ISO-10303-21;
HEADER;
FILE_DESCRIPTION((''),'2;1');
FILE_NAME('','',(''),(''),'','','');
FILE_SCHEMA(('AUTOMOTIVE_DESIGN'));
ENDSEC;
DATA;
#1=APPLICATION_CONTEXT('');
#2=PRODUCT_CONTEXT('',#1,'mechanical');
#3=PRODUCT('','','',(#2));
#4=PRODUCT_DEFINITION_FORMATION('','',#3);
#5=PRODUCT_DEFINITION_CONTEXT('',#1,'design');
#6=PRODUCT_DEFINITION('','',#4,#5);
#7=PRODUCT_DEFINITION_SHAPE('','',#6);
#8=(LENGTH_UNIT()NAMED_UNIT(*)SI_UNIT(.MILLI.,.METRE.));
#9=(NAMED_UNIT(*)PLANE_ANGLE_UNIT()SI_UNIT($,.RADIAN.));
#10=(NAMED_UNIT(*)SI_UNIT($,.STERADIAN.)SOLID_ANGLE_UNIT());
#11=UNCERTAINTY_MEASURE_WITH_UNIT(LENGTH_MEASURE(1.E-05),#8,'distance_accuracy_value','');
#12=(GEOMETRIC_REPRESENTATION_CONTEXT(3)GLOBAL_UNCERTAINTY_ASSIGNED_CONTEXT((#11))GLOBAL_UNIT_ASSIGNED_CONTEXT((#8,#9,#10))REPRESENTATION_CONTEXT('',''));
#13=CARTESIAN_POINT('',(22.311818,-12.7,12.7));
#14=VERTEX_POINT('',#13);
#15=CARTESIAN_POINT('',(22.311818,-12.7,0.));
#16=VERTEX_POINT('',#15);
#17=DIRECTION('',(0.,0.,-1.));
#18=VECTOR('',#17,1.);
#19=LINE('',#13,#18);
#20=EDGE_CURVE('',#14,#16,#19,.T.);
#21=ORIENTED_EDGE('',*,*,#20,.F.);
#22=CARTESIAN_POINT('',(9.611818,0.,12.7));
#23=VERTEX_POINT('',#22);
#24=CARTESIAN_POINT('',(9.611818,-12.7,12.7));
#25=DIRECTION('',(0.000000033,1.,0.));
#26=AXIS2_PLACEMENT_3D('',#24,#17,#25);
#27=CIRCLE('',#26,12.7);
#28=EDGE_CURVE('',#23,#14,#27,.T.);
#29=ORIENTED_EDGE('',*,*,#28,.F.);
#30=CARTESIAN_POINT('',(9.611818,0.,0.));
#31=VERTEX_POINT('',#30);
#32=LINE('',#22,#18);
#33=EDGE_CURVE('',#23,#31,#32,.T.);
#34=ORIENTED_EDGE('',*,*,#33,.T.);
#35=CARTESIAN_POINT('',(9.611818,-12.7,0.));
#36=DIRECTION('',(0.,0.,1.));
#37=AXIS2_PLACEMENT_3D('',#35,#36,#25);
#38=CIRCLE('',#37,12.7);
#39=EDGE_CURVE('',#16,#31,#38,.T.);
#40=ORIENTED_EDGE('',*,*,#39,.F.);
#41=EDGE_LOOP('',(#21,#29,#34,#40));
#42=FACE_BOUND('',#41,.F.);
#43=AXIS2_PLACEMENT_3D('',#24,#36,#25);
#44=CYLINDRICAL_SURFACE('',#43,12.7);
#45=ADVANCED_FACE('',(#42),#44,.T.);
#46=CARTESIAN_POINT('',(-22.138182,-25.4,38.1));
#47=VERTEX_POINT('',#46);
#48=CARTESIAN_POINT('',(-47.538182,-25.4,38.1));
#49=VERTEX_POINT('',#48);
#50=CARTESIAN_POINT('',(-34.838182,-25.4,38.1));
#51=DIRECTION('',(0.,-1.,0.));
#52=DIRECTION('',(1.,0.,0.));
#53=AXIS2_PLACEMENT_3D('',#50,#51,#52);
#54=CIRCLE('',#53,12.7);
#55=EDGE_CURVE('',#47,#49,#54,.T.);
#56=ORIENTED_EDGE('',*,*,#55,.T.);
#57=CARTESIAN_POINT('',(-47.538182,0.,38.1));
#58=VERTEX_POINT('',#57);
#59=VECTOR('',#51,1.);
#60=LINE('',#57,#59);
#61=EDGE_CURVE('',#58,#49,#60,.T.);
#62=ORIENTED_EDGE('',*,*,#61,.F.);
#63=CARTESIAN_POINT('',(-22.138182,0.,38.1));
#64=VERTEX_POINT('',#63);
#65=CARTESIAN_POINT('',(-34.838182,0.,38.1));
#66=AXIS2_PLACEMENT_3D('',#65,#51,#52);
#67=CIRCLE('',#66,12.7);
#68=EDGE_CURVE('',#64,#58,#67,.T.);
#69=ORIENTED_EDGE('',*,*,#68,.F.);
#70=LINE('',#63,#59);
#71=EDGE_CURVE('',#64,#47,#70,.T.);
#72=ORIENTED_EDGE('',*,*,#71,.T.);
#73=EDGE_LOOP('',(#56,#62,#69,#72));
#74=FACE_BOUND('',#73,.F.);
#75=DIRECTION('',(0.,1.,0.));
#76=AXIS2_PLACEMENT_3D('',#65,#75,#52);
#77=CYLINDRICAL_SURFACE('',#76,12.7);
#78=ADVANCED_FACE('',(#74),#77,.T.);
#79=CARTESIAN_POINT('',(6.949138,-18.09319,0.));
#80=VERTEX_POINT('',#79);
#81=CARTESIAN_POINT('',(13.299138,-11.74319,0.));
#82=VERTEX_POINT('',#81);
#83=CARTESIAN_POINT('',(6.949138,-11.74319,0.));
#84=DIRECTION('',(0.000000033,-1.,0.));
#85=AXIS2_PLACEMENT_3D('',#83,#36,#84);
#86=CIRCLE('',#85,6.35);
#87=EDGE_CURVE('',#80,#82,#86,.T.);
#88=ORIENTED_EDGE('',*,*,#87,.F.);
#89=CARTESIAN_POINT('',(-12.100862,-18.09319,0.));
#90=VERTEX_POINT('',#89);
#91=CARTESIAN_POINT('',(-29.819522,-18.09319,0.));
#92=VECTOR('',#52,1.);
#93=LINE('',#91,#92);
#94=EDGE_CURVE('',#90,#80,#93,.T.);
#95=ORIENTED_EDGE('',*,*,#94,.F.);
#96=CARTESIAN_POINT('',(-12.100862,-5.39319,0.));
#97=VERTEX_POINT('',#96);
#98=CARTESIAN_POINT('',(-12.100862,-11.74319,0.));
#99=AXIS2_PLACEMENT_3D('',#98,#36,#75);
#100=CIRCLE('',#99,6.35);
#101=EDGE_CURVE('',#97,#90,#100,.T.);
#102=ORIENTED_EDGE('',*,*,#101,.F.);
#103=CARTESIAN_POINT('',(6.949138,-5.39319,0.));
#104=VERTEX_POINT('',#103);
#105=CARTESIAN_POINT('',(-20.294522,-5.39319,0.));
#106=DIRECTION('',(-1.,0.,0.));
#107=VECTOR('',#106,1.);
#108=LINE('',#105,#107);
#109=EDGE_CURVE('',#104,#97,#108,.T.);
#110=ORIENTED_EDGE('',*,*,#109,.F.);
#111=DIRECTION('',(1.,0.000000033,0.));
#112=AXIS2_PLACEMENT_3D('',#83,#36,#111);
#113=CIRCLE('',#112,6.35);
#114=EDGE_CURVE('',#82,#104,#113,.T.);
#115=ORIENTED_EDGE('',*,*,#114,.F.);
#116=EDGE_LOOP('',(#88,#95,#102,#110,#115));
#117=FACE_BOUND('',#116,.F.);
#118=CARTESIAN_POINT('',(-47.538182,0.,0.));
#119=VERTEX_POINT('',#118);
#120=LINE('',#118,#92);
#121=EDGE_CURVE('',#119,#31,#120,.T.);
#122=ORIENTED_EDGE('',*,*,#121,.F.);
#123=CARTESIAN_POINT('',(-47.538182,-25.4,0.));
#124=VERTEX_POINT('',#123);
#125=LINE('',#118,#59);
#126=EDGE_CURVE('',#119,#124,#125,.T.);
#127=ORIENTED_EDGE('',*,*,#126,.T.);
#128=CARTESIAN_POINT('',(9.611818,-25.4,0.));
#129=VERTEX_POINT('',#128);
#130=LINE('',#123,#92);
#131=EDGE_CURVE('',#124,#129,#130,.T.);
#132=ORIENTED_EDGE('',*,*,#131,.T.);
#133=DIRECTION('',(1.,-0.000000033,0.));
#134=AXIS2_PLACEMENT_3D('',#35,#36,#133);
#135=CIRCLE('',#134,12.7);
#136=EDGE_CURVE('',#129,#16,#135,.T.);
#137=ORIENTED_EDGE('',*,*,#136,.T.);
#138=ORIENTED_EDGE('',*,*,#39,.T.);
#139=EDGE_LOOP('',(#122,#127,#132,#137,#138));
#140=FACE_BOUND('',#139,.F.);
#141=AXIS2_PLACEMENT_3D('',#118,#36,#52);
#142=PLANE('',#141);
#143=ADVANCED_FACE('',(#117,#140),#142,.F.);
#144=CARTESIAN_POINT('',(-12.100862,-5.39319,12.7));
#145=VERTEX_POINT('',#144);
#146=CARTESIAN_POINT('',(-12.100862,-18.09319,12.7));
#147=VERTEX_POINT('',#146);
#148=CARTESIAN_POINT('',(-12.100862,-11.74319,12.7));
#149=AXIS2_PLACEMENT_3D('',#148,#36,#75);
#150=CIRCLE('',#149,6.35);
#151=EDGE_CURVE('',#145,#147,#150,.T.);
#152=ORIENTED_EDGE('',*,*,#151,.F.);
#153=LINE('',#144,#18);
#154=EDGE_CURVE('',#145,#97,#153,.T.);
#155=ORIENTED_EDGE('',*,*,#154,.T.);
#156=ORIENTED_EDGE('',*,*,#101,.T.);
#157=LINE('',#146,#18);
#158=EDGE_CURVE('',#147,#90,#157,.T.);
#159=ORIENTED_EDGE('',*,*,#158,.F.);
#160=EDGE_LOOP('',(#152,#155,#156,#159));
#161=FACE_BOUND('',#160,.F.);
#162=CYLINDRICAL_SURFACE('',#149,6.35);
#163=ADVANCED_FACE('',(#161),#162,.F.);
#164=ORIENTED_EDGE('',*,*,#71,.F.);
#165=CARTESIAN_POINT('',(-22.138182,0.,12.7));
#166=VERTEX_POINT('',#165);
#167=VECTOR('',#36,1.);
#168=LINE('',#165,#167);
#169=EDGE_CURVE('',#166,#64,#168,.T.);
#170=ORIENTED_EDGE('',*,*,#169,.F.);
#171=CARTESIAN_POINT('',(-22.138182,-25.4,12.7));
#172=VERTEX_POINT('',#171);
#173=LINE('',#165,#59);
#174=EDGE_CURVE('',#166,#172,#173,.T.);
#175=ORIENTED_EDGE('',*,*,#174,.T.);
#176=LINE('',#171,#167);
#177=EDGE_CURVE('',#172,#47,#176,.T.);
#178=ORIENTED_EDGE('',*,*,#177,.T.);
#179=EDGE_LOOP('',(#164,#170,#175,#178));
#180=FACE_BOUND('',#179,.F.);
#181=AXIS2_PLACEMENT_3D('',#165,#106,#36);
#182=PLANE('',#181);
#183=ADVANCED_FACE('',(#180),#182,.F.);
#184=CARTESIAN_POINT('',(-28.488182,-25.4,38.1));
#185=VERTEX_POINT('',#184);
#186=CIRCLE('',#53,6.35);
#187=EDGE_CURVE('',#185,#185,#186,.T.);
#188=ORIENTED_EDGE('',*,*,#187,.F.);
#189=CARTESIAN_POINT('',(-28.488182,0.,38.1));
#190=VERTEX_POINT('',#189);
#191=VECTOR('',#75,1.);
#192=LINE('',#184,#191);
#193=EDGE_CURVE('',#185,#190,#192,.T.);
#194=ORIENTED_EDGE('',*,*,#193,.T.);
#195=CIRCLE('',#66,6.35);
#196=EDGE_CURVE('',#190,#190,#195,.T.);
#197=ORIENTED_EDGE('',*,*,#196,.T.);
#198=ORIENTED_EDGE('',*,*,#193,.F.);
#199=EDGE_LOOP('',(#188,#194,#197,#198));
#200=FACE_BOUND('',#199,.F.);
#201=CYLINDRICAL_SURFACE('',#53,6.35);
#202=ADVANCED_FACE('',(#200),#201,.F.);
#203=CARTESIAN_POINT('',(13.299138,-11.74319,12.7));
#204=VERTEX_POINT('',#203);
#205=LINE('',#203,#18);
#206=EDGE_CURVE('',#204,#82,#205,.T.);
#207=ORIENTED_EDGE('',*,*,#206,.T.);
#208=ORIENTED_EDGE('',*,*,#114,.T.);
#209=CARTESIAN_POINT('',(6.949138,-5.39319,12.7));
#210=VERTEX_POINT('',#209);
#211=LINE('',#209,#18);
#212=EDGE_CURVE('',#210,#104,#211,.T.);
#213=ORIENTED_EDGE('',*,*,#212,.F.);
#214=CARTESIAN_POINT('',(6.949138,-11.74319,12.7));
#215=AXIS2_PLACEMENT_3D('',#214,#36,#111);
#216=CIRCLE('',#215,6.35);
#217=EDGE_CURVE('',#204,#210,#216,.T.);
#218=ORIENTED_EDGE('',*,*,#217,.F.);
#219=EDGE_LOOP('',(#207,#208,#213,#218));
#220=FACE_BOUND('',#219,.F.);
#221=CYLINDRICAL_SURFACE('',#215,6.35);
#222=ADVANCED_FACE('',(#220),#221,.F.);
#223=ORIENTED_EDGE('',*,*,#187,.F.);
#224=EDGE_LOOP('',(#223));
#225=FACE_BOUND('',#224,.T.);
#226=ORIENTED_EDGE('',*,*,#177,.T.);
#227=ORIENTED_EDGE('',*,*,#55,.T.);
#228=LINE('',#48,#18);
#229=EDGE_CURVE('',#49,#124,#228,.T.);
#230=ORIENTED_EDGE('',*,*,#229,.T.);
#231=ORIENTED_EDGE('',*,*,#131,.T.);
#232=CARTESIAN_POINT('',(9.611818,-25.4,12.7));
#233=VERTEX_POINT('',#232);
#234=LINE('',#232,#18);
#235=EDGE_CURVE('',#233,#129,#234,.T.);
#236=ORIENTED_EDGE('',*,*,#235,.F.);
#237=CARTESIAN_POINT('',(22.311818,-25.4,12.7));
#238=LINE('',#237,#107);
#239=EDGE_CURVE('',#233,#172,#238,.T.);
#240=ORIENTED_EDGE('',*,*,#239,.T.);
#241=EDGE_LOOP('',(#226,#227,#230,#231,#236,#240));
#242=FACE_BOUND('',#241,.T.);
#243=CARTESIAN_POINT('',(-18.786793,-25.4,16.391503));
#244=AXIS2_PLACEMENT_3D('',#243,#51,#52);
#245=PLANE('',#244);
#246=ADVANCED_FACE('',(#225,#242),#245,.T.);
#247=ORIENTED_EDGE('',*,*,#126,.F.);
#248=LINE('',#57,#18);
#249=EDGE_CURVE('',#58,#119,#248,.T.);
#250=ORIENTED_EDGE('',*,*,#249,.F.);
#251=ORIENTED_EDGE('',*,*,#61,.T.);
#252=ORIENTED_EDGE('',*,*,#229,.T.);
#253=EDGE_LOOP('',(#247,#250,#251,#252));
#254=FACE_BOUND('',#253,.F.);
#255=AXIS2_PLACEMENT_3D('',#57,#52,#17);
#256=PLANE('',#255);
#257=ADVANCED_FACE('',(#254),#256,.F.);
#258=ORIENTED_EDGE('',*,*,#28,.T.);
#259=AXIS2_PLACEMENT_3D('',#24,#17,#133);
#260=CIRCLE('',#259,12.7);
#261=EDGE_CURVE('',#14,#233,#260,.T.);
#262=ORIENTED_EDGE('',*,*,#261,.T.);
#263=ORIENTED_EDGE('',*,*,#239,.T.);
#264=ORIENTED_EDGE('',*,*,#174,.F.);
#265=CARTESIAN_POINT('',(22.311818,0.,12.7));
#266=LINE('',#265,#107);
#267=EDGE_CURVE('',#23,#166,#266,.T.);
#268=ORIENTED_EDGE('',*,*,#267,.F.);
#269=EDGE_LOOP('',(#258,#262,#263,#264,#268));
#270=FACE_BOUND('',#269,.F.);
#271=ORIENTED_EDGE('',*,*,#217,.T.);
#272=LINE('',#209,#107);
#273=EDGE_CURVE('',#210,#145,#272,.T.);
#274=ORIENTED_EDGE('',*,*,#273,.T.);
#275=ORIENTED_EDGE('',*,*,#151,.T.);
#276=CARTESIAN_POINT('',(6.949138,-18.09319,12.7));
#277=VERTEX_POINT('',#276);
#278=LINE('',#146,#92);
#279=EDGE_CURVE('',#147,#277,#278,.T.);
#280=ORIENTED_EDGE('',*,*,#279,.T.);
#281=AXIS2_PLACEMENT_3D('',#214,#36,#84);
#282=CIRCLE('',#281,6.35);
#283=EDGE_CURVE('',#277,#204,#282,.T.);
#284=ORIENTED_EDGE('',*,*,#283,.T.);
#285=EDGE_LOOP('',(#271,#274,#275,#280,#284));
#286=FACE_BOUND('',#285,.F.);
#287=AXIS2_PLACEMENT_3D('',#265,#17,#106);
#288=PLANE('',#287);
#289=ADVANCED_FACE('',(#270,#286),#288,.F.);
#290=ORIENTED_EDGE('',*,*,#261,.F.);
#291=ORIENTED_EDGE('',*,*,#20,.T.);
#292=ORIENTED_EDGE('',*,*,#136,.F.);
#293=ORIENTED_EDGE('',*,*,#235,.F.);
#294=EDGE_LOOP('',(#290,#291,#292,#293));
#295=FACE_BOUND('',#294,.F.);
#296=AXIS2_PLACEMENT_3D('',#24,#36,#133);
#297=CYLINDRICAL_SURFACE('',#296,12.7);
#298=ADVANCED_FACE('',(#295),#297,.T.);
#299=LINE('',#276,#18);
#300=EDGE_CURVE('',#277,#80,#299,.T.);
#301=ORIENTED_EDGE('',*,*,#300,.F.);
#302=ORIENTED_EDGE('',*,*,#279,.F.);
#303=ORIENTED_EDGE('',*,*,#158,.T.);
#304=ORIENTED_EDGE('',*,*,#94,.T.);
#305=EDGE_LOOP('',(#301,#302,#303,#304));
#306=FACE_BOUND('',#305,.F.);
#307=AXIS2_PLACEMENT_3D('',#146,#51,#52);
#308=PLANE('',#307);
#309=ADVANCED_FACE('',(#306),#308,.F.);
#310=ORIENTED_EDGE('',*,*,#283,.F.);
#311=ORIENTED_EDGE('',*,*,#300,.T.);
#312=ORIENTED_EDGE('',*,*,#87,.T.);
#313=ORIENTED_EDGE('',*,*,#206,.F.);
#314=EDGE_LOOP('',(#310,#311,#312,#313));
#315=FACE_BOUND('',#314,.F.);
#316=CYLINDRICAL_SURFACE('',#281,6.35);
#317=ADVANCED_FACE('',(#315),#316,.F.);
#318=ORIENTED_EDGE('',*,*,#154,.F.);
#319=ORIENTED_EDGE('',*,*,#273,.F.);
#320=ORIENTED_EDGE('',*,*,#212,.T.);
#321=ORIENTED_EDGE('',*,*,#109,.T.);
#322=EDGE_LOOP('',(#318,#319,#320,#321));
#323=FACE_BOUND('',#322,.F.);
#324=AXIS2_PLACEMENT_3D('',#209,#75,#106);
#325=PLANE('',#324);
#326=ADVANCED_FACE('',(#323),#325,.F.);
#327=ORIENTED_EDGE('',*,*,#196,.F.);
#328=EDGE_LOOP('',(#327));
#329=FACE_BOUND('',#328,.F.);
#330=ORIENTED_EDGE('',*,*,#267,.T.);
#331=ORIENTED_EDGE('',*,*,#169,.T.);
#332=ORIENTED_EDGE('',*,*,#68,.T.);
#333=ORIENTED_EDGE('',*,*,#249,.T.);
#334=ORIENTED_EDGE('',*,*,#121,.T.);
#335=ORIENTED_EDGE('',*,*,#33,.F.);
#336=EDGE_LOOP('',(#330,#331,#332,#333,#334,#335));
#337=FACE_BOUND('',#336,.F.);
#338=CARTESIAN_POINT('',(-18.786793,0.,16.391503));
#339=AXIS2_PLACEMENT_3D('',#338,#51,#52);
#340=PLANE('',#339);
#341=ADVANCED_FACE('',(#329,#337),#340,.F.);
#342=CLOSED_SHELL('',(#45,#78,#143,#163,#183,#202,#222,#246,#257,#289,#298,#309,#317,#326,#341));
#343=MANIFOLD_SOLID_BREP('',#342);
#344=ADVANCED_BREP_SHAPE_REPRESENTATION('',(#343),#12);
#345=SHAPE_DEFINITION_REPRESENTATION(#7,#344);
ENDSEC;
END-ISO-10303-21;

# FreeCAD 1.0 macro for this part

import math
import FreeCAD as App
import Part
import Sketcher

V = App.Vector
Q = App.Units.Quantity

doc = App.newDocument("Part")
body = doc.addObject("PartDesign::Body", "Body")

sketch1 = doc.addObject("Sketcher::SketchObject", "Sketch")
body.addObject(sketch1)
sketch1.AttachmentSupport = (doc.XZ_Plane, [""])
sketch1.MapMode = "FlatFace"
sketch1.addGeometry([
    Part.LineSegment(V(-48, 38, 0), V(-48, 0, 0)),
    Part.LineSegment(V(-48, 0, 0), V(22, 0, 0)),
    Part.LineSegment(V(22, 0, 0), V(22, 13, 0)),
    Part.LineSegment(V(22, 13, 0), V(-22, 13, 0)),
    Part.LineSegment(V(-22, 13, 0), V(-22, 38, 0)),
    Part.ArcOfCircle(Part.Circle(V(-35, 38, 0), V(0, 0, 1), 13), math.radians(0), math.radians(180)),
], False)
sketch1.addConstraint([
    Sketcher.Constraint("Coincident", 0, 2, 1, 1),
    Sketcher.Constraint("Coincident", 1, 2, 2, 1),
    Sketcher.Constraint("Coincident", 2, 2, 3, 1),
    Sketcher.Constraint("Coincident", 3, 2, 4, 1),
    Sketcher.Constraint("Tangent", 4, 2, 5, 1),
    Sketcher.Constraint("Tangent", 5, 2, 0, 1),
    Sketcher.Constraint("Vertical", 0),
    Sketcher.Constraint("Horizontal", 1),
    Sketcher.Constraint("Vertical", 2),
    Sketcher.Constraint("Horizontal", 3),
    Sketcher.Constraint("Vertical", 4),
    Sketcher.Constraint("PointOnObject", 0, 2, -1),
    Sketcher.Constraint("Radius", 5, Q("0.5 in")),
    Sketcher.Constraint("DistanceY", 4, 1, 4, 2, Q("1 in")),
    Sketcher.Constraint("DistanceY", 0, 2, 0, 1, Q("1.5 in")),
    Sketcher.Constraint("DistanceX", 1, 1, 1, 2, Q("2.75 in")),
    Sketcher.Constraint("DistanceX", 5, 3, -1, 1, Q("34.838182 mm")),
])
pad1 = doc.addObject("PartDesign::Pad", "Pad")
body.addObject(pad1)
pad1.Profile = sketch1
pad1.Length = Q("1 in")

sketch2 = doc.addObject("Sketcher::SketchObject", "Sketch001")
body.addObject(sketch2)
sketch2.AttachmentSupport = (doc.XZ_Plane, [""])
sketch2.MapMode = "FlatFace"
sketch2.AttachmentOffset = App.Placement(V(0, 0, 1 * 25.4), App.Rotation())
sketch2.addGeometry(Part.Circle(V(-35, 38, 0), V(0, 0, 1), 6), False)
sketch2.addConstraint([
    Sketcher.Constraint("Diameter", 0, Q("0.5 in")),
    Sketcher.Constraint("DistanceY", -1, 1, 0, 3, Q("1.5 in")),
    Sketcher.Constraint("DistanceX", 0, 3, -1, 1, Q("34.838182 mm")),
])
pocket1 = doc.addObject("PartDesign::Pocket", "Pocket")
body.addObject(pocket1)
pocket1.Profile = sketch2
pocket1.Length = Q("1 in")

sketch3 = doc.addObject("Sketcher::SketchObject", "Sketch002")
body.addObject(sketch3)
sketch3.AttachmentSupport = (doc.XY_Plane, [""])
sketch3.MapMode = "FlatFace"
sketch3.AttachmentOffset = App.Placement(V(0, 0, 0.5 * 25.4), App.Rotation())
sketch3.addGeometry([
    Part.ArcOfCircle(Part.Circle(V(10, -13, 0), V(0, 0, 1), 13), math.radians(0), math.radians(90)),
    Part.LineSegment(V(22, -13, 0), V(22, 0, 0)),
    Part.LineSegment(V(22, 0, 0), V(10, 0, 0)),
    Part.ArcOfCircle(Part.Circle(V(10, -13, 0), V(0, 0, 1), 13), math.radians(-90), math.radians(0)),
    Part.LineSegment(V(10, -25, 0), V(22, -25, 0)),
    Part.LineSegment(V(22, -25, 0), V(22, -13, 0)),
], False)
sketch3.addConstraint([
    Sketcher.Constraint("Tangent", 0, 1, 1, 1),
    Sketcher.Constraint("Coincident", 1, 2, 2, 1),
    Sketcher.Constraint("Tangent", 2, 2, 0, 2),
    Sketcher.Constraint("Tangent", 3, 1, 4, 1),
    Sketcher.Constraint("Coincident", 4, 2, 5, 1),
    Sketcher.Constraint("Tangent", 5, 2, 3, 2),
    Sketcher.Constraint("Vertical", 1),
    Sketcher.Constraint("Horizontal", 2),
    Sketcher.Constraint("Horizontal", 4),
    Sketcher.Constraint("Vertical", 5),
    Sketcher.Constraint("Coincident", 3, 3, 0, 3),
    Sketcher.Constraint("Equal", 0, 3),
    Sketcher.Constraint("PointOnObject", 1, 2, -1),
    Sketcher.Constraint("Radius", 0, Q("0.5 in")),
    Sketcher.Constraint("DistanceX", -1, 1, 0, 3, Q("9.611818 mm")),
])
pocket2 = doc.addObject("PartDesign::Pocket", "Pocket001")
body.addObject(pocket2)
pocket2.Profile = sketch3
pocket2.Length = Q("1 in")

sketch4 = doc.addObject("Sketcher::SketchObject", "Sketch003")
body.addObject(sketch4)
sketch4.AttachmentSupport = (doc.XY_Plane, [""])
sketch4.MapMode = "FlatFace"
sketch4.AttachmentOffset = App.Placement(V(0, 0, 0.5 * 25.4), App.Rotation())
sketch4.addGeometry([
    Part.ArcOfCircle(Part.Circle(V(-12, -12, 0), V(0, 0, 1), 6), math.radians(90), math.radians(270)),
    Part.LineSegment(V(-12, -18, 0), V(7, -18, 0)),
    Part.ArcOfCircle(Part.Circle(V(7, -12, 0), V(0, 0, 1), 6), math.radians(-90), math.radians(0)),
    Part.ArcOfCircle(Part.Circle(V(7, -12, 0), V(0, 0, 1), 6), math.radians(0), math.radians(90)),
    Part.LineSegment(V(7, -5, 0), V(-12, -5, 0)),
], False)
sketch4.addConstraint([
    Sketcher.Constraint("Tangent", 0, 2, 1, 1),
    Sketcher.Constraint("Tangent", 1, 2, 2, 1),
    Sketcher.Constraint("Tangent", 2, 2, 3, 1),
    Sketcher.Constraint("Tangent", 3, 2, 4, 1),
    Sketcher.Constraint("Tangent", 4, 2, 0, 1),
    Sketcher.Constraint("Horizontal", 1),
    Sketcher.Constraint("Horizontal", 4),
    Sketcher.Constraint("Equal", 0, 2),
    Sketcher.Constraint("Horizontal", 3, 3, 2, 2),
    Sketcher.Constraint("Radius", 0, Q("0.25 in")),
    Sketcher.Constraint("DistanceX", 0, 3, 2, 2, Q("1 in")),
    Sketcher.Constraint("DistanceX", 0, 3, -1, 1, Q("12.100862 mm")),
    Sketcher.Constraint("DistanceY", 0, 3, -1, 1, Q("11.74319 mm")),
])
pocket3 = doc.addObject("PartDesign::Pocket", "Pocket002")
body.addObject(pocket3)
pocket3.Profile = sketch4
pocket3.Type = "ThroughAll"

doc.recompute()
